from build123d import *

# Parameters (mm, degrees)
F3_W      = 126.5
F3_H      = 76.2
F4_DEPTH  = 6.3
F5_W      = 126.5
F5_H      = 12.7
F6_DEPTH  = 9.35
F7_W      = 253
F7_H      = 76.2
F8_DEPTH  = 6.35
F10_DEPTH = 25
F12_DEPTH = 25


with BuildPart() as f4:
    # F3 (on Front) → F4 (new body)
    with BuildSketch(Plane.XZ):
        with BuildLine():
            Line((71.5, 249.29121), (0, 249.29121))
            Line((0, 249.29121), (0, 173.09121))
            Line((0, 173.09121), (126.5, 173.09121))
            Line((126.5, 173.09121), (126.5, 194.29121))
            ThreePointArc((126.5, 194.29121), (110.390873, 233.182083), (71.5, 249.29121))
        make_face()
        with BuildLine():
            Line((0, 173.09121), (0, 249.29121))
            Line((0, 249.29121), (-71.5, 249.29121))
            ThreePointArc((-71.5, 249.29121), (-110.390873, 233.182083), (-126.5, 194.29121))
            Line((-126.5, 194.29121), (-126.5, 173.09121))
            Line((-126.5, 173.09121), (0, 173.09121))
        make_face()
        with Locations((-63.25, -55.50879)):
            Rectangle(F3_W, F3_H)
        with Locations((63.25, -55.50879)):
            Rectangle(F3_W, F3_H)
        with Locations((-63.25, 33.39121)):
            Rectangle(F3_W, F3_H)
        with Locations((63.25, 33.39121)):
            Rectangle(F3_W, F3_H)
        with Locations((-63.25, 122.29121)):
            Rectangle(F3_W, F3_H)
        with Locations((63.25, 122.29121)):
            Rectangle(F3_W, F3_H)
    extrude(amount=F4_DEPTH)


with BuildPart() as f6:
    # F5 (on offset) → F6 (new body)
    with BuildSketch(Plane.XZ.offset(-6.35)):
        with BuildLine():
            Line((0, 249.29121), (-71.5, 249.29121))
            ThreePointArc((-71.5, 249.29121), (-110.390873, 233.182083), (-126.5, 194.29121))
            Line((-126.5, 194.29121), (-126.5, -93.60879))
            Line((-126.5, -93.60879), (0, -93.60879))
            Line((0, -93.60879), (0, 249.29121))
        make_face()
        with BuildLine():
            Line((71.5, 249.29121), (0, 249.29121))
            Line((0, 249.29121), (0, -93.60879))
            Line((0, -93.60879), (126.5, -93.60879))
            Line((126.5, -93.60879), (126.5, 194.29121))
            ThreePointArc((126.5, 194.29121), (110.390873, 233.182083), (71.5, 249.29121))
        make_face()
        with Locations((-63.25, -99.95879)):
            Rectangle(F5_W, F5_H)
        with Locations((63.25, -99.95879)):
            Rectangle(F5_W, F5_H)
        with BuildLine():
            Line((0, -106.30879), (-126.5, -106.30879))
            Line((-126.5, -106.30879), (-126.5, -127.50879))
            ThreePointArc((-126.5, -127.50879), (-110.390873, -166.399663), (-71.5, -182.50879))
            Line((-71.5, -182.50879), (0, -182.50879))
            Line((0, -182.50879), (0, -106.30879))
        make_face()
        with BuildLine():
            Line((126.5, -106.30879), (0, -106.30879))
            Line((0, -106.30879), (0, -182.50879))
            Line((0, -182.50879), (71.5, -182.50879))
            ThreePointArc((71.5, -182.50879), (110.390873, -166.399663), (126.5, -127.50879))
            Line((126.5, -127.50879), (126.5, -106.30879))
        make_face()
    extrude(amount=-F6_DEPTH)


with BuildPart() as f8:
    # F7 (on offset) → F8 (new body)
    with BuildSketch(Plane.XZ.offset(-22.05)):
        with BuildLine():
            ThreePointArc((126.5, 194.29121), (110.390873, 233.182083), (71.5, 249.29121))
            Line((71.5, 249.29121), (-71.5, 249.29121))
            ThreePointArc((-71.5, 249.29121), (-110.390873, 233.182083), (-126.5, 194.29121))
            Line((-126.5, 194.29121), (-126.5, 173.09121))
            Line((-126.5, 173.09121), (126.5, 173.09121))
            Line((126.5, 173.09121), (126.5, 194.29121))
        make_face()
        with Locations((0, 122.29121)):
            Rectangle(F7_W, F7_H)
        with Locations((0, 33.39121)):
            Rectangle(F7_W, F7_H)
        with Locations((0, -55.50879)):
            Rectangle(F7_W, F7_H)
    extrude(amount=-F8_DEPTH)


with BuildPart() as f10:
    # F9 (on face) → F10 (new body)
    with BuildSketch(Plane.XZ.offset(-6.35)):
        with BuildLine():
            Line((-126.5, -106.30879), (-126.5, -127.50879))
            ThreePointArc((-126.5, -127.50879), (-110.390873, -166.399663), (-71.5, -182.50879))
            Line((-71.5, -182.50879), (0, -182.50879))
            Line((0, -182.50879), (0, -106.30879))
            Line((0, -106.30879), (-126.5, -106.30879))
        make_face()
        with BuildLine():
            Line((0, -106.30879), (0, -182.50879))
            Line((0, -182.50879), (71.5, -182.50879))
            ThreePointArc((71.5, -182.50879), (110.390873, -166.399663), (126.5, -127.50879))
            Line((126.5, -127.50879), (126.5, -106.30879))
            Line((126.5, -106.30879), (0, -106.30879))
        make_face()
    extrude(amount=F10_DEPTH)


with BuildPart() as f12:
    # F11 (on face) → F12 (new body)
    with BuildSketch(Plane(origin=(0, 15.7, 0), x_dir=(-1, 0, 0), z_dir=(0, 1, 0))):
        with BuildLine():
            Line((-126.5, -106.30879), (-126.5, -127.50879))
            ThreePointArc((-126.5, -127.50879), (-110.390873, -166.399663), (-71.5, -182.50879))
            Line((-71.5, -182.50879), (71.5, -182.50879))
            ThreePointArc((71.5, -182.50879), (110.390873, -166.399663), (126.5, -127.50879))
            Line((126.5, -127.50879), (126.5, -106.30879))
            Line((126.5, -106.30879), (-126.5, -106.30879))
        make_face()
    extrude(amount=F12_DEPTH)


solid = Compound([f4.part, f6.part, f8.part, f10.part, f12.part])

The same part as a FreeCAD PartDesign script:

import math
import FreeCAD as App
import Part
import Sketcher


def add_polygon(sketch, points):
    """Adds a closed chain of lines whose ends are joined by coincident constraints."""
    first, n = sketch.GeometryCount, len(points)
    for a, b in zip(points, points[1:] + points[:1]):
        sketch.addGeometry(Part.LineSegment(App.Vector(*a, 0), App.Vector(*b, 0)), False)
    for i in range(n):
        sketch.addConstraint(Sketcher.Constraint("Coincident", first + i, 2, first + (i + 1) % n, 1))

doc = App.newDocument("Part")
body = doc.addObject("PartDesign::Body", "Body")
body.AllowCompound = True

# Sketch on XZ plane
sketch1 = doc.addObject("Sketcher::SketchObject", "Sketch")
body.addObject(sketch1)
sketch1.AttachmentSupport = (doc.XZ_Plane, [""])
sketch1.MapMode = "FlatFace"
sketch1.addGeometry(Part.LineSegment(App.Vector(72, 249, 0), App.Vector(-72, 249, 0)), False)  # 0
sketch1.addGeometry(Part.ArcOfCircle(Part.Circle(App.Vector(-72, 194, 0), App.Vector(0, 0, 1), 55), math.radians(90), math.radians(180)), False)  # 1
sketch1.addGeometry(Part.LineSegment(App.Vector(-126, 194, 0), App.Vector(-126, 173, 0)), False)  # 2
sketch1.addGeometry(Part.LineSegment(App.Vector(-126, 173, 0), App.Vector(126, 173, 0)), False)  # 3
sketch1.addGeometry(Part.LineSegment(App.Vector(126, 173, 0), App.Vector(126, 194, 0)), False)  # 4
sketch1.addGeometry(Part.ArcOfCircle(Part.Circle(App.Vector(72, 194, 0), App.Vector(0, 0, 1), 55), math.radians(0), math.radians(90)), False)  # 5
add_polygon(sketch1, [(-126, -17), (-126, -94), (126, -94), (126, -17)])  # lines 6-9
add_polygon(sketch1, [(-126, 71), (-126, -5), (126, -5), (126, 71)])  # lines 10-13
add_polygon(sketch1, [(-126, 160), (-126, 84), (126, 84), (126, 160)])  # lines 14-17
sketch1.addConstraint([
    Sketcher.Constraint("Tangent", 0, 2, 1, 1),
    Sketcher.Constraint("Tangent", 1, 2, 2, 1),
    Sketcher.Constraint("Coincident", 2, 2, 3, 1),
    Sketcher.Constraint("Coincident", 3, 2, 4, 1),
    Sketcher.Constraint("Tangent", 4, 2, 5, 1),
    Sketcher.Constraint("Tangent", 5, 2, 0, 1),
    Sketcher.Constraint("Horizontal", 0),
    Sketcher.Constraint("Vertical", 2),
    Sketcher.Constraint("Horizontal", 3),
    Sketcher.Constraint("Vertical", 4),
    Sketcher.Constraint("Vertical", 6),
    Sketcher.Constraint("Horizontal", 7),
    Sketcher.Constraint("Vertical", 8),
    Sketcher.Constraint("Horizontal", 9),
    Sketcher.Constraint("Vertical", 10),
    Sketcher.Constraint("Horizontal", 11),
    Sketcher.Constraint("Vertical", 12),
    Sketcher.Constraint("Horizontal", 13),
    Sketcher.Constraint("Vertical", 14),
    Sketcher.Constraint("Horizontal", 15),
    Sketcher.Constraint("Vertical", 16),
    Sketcher.Constraint("Horizontal", 17),
    Sketcher.Constraint("Equal", 1, 5),
    Sketcher.Constraint("Vertical", 2, 2, 6, 2),
    Sketcher.Constraint("Vertical", 4, 2, 7, 2),
    Sketcher.Constraint("Vertical", 9, 2, 10, 2),
    Sketcher.Constraint("Vertical", 8, 2, 11, 2),
    Sketcher.Constraint("Vertical", 13, 2, 14, 2),
    Sketcher.Constraint("Vertical", 12, 2, 15, 2),
    Sketcher.Constraint("Equal", 8, 10),
    Sketcher.Constraint("Equal", 12, 14),
    Sketcher.Constraint("Radius", 1, 55.0),
    Sketcher.Constraint("DistanceX", 0, 2, 0, 1, 143.0),
    Sketcher.Constraint("DistanceY", 2, 2, 2, 1, 21.2),
    Sketcher.Constraint("DistanceY", 6, 2, 6, 1, 76.2),
    Sketcher.Constraint("DistanceY", 10, 2, 1, 2, 199.0),
    Sketcher.Constraint("DistanceX", 1, 3, -1, 1, 71.5),
    Sketcher.Constraint("DistanceY", 6, 2, 2, 2, 266.7),
    Sketcher.Constraint("DistanceY", 13, 2, 14, 2, 12.7),
    Sketcher.Constraint("DistanceY", -1, 1, 1, 3, 194.29121),
])
pad1 = doc.addObject("PartDesign::Pad", "Pad")
body.addObject(pad1)
pad1.Profile = sketch1
pad1.Length = 6.3
body2 = doc.addObject("PartDesign::Body", "Body001")

# Sketch on XZ plane
sketch2 = doc.addObject("Sketcher::SketchObject", "Sketch001")
body2.addObject(sketch2)
sketch2.AttachmentSupport = (doc.getObject("XZ_Plane001"), [""])
sketch2.MapMode = "FlatFace"
sketch2.AttachmentOffset = App.Placement(App.Vector(0, 0, -6.35), App.Rotation())
sketch2.addGeometry([
    Part.ArcOfCircle(Part.Circle(App.Vector(-72, 194, 0), App.Vector(0, 0, 1), 55), math.radians(90), math.radians(180)),  # 0
    Part.LineSegment(App.Vector(-126, 194, 0), App.Vector(-126, -128, 0)),  # 1
    Part.ArcOfCircle(Part.Circle(App.Vector(-72, -128, 0), App.Vector(0, 0, 1), 55), math.radians(180), math.radians(270)),  # 2
    Part.LineSegment(App.Vector(-72, -183, 0), App.Vector(72, -183, 0)),  # 3
    Part.ArcOfCircle(Part.Circle(App.Vector(72, -128, 0), App.Vector(0, 0, 1), 55), math.radians(-90), math.radians(0)),  # 4
    Part.LineSegment(App.Vector(126, -128, 0), App.Vector(126, 194, 0)),  # 5
    Part.ArcOfCircle(Part.Circle(App.Vector(72, 194, 0), App.Vector(0, 0, 1), 55), math.radians(0), math.radians(90)),  # 6
    Part.LineSegment(App.Vector(72, 249, 0), App.Vector(-72, 249, 0)),  # 7
], False)
sketch2.addConstraint([
    Sketcher.Constraint("Tangent", 0, 2, 1, 1),
    Sketcher.Constraint("Tangent", 1, 2, 2, 1),
    Sketcher.Constraint("Tangent", 2, 2, 3, 1),
    Sketcher.Constraint("Tangent", 3, 2, 4, 1),
    Sketcher.Constraint("Tangent", 4, 2, 5, 1),
    Sketcher.Constraint("Tangent", 5, 2, 6, 1),
    Sketcher.Constraint("Tangent", 6, 2, 7, 1),
    Sketcher.Constraint("Tangent", 7, 2, 0, 1),
    Sketcher.Constraint("Vertical", 1),
    Sketcher.Constraint("Horizontal", 3),
    Sketcher.Constraint("Vertical", 5),
    Sketcher.Constraint("Horizontal", 7),
    Sketcher.Constraint("Equal", 0, 2),
    Sketcher.Constraint("Equal", 2, 4),
    Sketcher.Constraint("Equal", 4, 6),
    Sketcher.Constraint("Radius", 0, 55.0),
    Sketcher.Constraint("DistanceX", 3, 1, 3, 2, 143.0),
    Sketcher.Constraint("DistanceY", 1, 2, 1, 1, 321.8),
    Sketcher.Constraint("DistanceX", 0, 3, -1, 1, 71.5),
    Sketcher.Constraint("DistanceY", -1, 1, 0, 3, 194.29121),
])
pad2 = doc.addObject("PartDesign::Pad", "Pad001")
body2.addObject(pad2)
pad2.Profile = sketch2
pad2.Length = 9.35
pad2.Reversed = True
body3 = doc.addObject("PartDesign::Body", "Body002")
body3.AllowCompound = True

# Sketch on XZ plane
sketch3 = doc.addObject("Sketcher::SketchObject", "Sketch002")
body3.addObject(sketch3)
sketch3.AttachmentSupport = (doc.getObject("XZ_Plane002"), [""])
sketch3.MapMode = "FlatFace"
sketch3.AttachmentOffset = App.Placement(App.Vector(0, 0, -22.05), App.Rotation())
sketch3.addGeometry(Part.ArcOfCircle(Part.Circle(App.Vector(72, 194, 0), App.Vector(0, 0, 1), 55), math.radians(0), math.radians(90)), False)  # 0
sketch3.addGeometry(Part.LineSegment(App.Vector(72, 249, 0), App.Vector(-72, 249, 0)), False)  # 1
sketch3.addGeometry(Part.ArcOfCircle(Part.Circle(App.Vector(-72, 194, 0), App.Vector(0, 0, 1), 55), math.radians(90), math.radians(180)), False)  # 2
sketch3.addGeometry(Part.LineSegment(App.Vector(-126, 194, 0), App.Vector(-126, 173, 0)), False)  # 3
sketch3.addGeometry(Part.LineSegment(App.Vector(-126, 173, 0), App.Vector(126, 173, 0)), False)  # 4
sketch3.addGeometry(Part.LineSegment(App.Vector(126, 173, 0), App.Vector(126, 194, 0)), False)  # 5
add_polygon(sketch3, [(-126, 160), (-126, 84), (126, 84), (126, 160)])  # lines 6-9
add_polygon(sketch3, [(-126, 71), (-126, -5), (126, -5), (126, 71)])  # lines 10-13
add_polygon(sketch3, [(-126, -17), (-126, -94), (126, -94), (126, -17)])  # lines 14-17
sketch3.addConstraint([
    Sketcher.Constraint("Tangent", 0, 2, 1, 1),
    Sketcher.Constraint("Tangent", 1, 2, 2, 1),
    Sketcher.Constraint("Tangent", 2, 2, 3, 1),
    Sketcher.Constraint("Coincident", 3, 2, 4, 1),
    Sketcher.Constraint("Coincident", 4, 2, 5, 1),
    Sketcher.Constraint("Tangent", 5, 2, 0, 1),
    Sketcher.Constraint("Horizontal", 1),
    Sketcher.Constraint("Vertical", 3),
    Sketcher.Constraint("Horizontal", 4),
    Sketcher.Constraint("Vertical", 5),
    Sketcher.Constraint("Vertical", 6),
    Sketcher.Constraint("Horizontal", 7),
    Sketcher.Constraint("Vertical", 8),
    Sketcher.Constraint("Horizontal", 9),
    Sketcher.Constraint("Vertical", 10),
    Sketcher.Constraint("Horizontal", 11),
    Sketcher.Constraint("Vertical", 12),
    Sketcher.Constraint("Horizontal", 13),
    Sketcher.Constraint("Vertical", 14),
    Sketcher.Constraint("Horizontal", 15),
    Sketcher.Constraint("Vertical", 16),
    Sketcher.Constraint("Horizontal", 17),
    Sketcher.Constraint("Equal", 0, 2),
    Sketcher.Constraint("Vertical", 3, 2, 6, 2),
    Sketcher.Constraint("Vertical", 5, 2, 7, 2),
    Sketcher.Constraint("Vertical", 9, 2, 10, 2),
    Sketcher.Constraint("Vertical", 8, 2, 11, 2),
    Sketcher.Constraint("Vertical", 13, 2, 14, 2),
    Sketcher.Constraint("Vertical", 12, 2, 15, 2),
    Sketcher.Constraint("Equal", 8, 10),
    Sketcher.Constraint("Equal", 12, 14),
    Sketcher.Constraint("Radius", 0, 55.0),
    Sketcher.Constraint("DistanceX", 1, 2, 1, 1, 143.0),
    Sketcher.Constraint("DistanceY", 3, 2, 3, 1, 21.2),
    Sketcher.Constraint("DistanceY", 6, 2, 6, 1, 76.2),
    Sketcher.Constraint("DistanceY", 10, 2, 2, 2, 199.0),
    Sketcher.Constraint("DistanceY", 14, 2, 9, 2, 254.0),
    Sketcher.Constraint("DistanceX", -1, 1, 0, 3, 71.5),
    Sketcher.Constraint("DistanceY", 6, 2, 3, 2, 88.9),
    Sketcher.Constraint("DistanceY", -1, 1, 0, 3, 194.29121),
])
pad3 = doc.addObject("PartDesign::Pad", "Pad002")
body3.addObject(pad3)
pad3.Profile = sketch3
pad3.Length = 6.35
pad3.Reversed = True
body4 = doc.addObject("PartDesign::Body", "Body003")

# Sketch on XZ plane
sketch4 = doc.addObject("Sketcher::SketchObject", "Sketch003")
body4.addObject(sketch4)
sketch4.AttachmentSupport = (doc.getObject("XZ_Plane003"), [""])
sketch4.MapMode = "FlatFace"
sketch4.AttachmentOffset = App.Placement(App.Vector(0, 0, -6.35), App.Rotation())
sketch4.addGeometry([
    Part.LineSegment(App.Vector(-126, -106, 0), App.Vector(-126, -128, 0)),  # 0
    Part.ArcOfCircle(Part.Circle(App.Vector(-72, -128, 0), App.Vector(0, 0, 1), 55), math.radians(180), math.radians(270)),  # 1
    Part.LineSegment(App.Vector(-72, -183, 0), App.Vector(72, -183, 0)),  # 2
    Part.ArcOfCircle(Part.Circle(App.Vector(72, -128, 0), App.Vector(0, 0, 1), 55), math.radians(-90), math.radians(0)),  # 3
    Part.LineSegment(App.Vector(126, -128, 0), App.Vector(126, -106, 0)),  # 4
    Part.LineSegment(App.Vector(126, -106, 0), App.Vector(-126, -106, 0)),  # 5
], False)
sketch4.addConstraint([
    Sketcher.Constraint("Tangent", 0, 2, 1, 1),
    Sketcher.Constraint("Tangent", 1, 2, 2, 1),
    Sketcher.Constraint("Tangent", 2, 2, 3, 1),
    Sketcher.Constraint("Tangent", 3, 2, 4, 1),
    Sketcher.Constraint("Coincident", 4, 2, 5, 1),
    Sketcher.Constraint("Coincident", 5, 2, 0, 1),
    Sketcher.Constraint("Vertical", 0),
    Sketcher.Constraint("Horizontal", 2),
    Sketcher.Constraint("Vertical", 4),
    Sketcher.Constraint("Horizontal", 5),
    Sketcher.Constraint("Equal", 1, 3),
    Sketcher.Constraint("Radius", 1, 55.0),
    Sketcher.Constraint("DistanceX", 2, 1, 2, 2, 143.0),
    Sketcher.Constraint("DistanceY", 0, 2, 0, 1, 21.2),
    Sketcher.Constraint("DistanceX", 1, 3, -1, 1, 71.5),
    Sketcher.Constraint("DistanceY", 1, 3, -1, 1, 127.50879),
])
pad4 = doc.addObject("PartDesign::Pad", "Pad003")
body4.addObject(pad4)
pad4.Profile = sketch4
pad4.Length = 25
body5 = doc.addObject("PartDesign::Body", "Body004")

# Sketch on XZ plane
sketch5 = doc.addObject("Sketcher::SketchObject", "Sketch004")
body5.addObject(sketch5)
sketch5.AttachmentSupport = (doc.getObject("XZ_Plane004"), [""])
sketch5.MapMode = "FlatFace"
sketch5.AttachmentOffset = App.Placement(App.Vector(0, 0, -15.7), App.Rotation())
sketch5.addGeometry([
    Part.LineSegment(App.Vector(126, -106, 0), App.Vector(126, -128, 0)),  # 0
    Part.ArcOfCircle(Part.Circle(App.Vector(72, -128, 0), App.Vector(0, 0, 1), 55), math.radians(-90), math.radians(0)),  # 1
    Part.LineSegment(App.Vector(72, -183, 0), App.Vector(-72, -183, 0)),  # 2
    Part.ArcOfCircle(Part.Circle(App.Vector(-72, -128, 0), App.Vector(0, 0, 1), 55), math.radians(180), math.radians(270)),  # 3
    Part.LineSegment(App.Vector(-126, -128, 0), App.Vector(-126, -106, 0)),  # 4
    Part.LineSegment(App.Vector(-126, -106, 0), App.Vector(126, -106, 0)),  # 5
], False)
sketch5.addConstraint([
    Sketcher.Constraint("Tangent", 0, 2, 1, 2),
    Sketcher.Constraint("Tangent", 1, 1, 2, 1),
    Sketcher.Constraint("Tangent", 2, 2, 3, 2),
    Sketcher.Constraint("Tangent", 3, 1, 4, 1),
    Sketcher.Constraint("Coincident", 4, 2, 5, 1),
    Sketcher.Constraint("Coincident", 5, 2, 0, 1),
    Sketcher.Constraint("Vertical", 0),
    Sketcher.Constraint("Horizontal", 2),
    Sketcher.Constraint("Vertical", 4),
    Sketcher.Constraint("Horizontal", 5),
    Sketcher.Constraint("Equal", 1, 3),
    Sketcher.Constraint("Radius", 1, 55.0),
    Sketcher.Constraint("DistanceX", 2, 2, 2, 1, 143.0),
    Sketcher.Constraint("DistanceY", 0, 2, 0, 1, 21.2),
    Sketcher.Constraint("DistanceX", -1, 1, 1, 3, 71.5),
    Sketcher.Constraint("DistanceY", 1, 3, -1, 1, 127.50879),
])
pad5 = doc.addObject("PartDesign::Pad", "Pad004")
body5.addObject(pad5)
pad5.Profile = sketch5
pad5.Length = 25
pad5.Reversed = True

doc.recompute()
